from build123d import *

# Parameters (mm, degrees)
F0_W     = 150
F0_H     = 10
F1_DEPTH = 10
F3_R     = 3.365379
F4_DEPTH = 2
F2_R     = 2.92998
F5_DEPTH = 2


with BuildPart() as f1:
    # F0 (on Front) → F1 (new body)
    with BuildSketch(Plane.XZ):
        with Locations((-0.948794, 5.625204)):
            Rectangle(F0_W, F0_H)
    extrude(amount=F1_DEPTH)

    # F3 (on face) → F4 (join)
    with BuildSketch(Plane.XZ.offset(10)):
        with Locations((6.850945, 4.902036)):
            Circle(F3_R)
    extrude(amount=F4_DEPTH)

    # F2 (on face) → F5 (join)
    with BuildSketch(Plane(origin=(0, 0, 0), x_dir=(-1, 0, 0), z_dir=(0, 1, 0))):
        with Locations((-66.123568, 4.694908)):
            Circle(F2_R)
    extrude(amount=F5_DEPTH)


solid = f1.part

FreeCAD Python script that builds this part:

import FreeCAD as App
import Part
import Sketcher

V = App.Vector
Q = App.Units.Quantity

doc = App.newDocument("Part")
params = doc.addObject("Spreadsheet::Sheet", "Params")
for row, (alias, value) in enumerate([
    ("sketch1_width", "150 mm"),
    ("sketch1_height", "10 mm"),
    ("pad1_length", "10 mm"),
    ("pad2_length", "2 mm"),
    ("pad3_length", "2 mm"),
], start=1):
    params.set(f"A{row}", alias)
    params.set(f"B{row}", "=" + value)
    params.setAlias(f"B{row}", alias)

body = doc.addObject("PartDesign::Body", "Body")

# Sketch on XZ plane
sketch1 = body.newObject("Sketcher::SketchObject", "Sketch")
sketch1.AttachmentSupport = (doc.getObject("XZ_Plane"), [""])
sketch1.MapMode = "FlatFace"
sketch1.addGeometry(Part.LineSegment(V(-75.948794, 10.625204, 0), V(-75.948794, 0.625204, 0)), False)
sketch1.addGeometry(Part.LineSegment(V(-75.948794, 0.625204, 0), V(74.051206, 0.625204, 0)), False)
sketch1.addGeometry(Part.LineSegment(V(74.051206, 0.625204, 0), V(74.051206, 10.625204, 0)), False)
sketch1.addGeometry(Part.LineSegment(V(74.051206, 10.625204, 0), V(-75.948794, 10.625204, 0)), False)
sketch1.addConstraint(Sketcher.Constraint("Coincident", 0, 2, 1, 1))
sketch1.addConstraint(Sketcher.Constraint("Coincident", 1, 2, 2, 1))
sketch1.addConstraint(Sketcher.Constraint("Coincident", 2, 2, 3, 1))
sketch1.addConstraint(Sketcher.Constraint("Coincident", 3, 2, 0, 1))
sketch1.addConstraint(Sketcher.Constraint("Vertical", 0))
sketch1.addConstraint(Sketcher.Constraint("Horizontal", 1))
sketch1.addConstraint(Sketcher.Constraint("Vertical", 2))
sketch1.addConstraint(Sketcher.Constraint("Horizontal", 3))
sketch1.addConstraint(Sketcher.Constraint("DistanceX", 1, 1, 1, 2, Q("150 mm")))
sketch1.addConstraint(Sketcher.Constraint("DistanceY", 0, 2, 0, 1, Q("10 mm")))
sketch1.addConstraint(Sketcher.Constraint("DistanceX", 0, 2, -1, 1, Q("75.948794 mm")))
sketch1.addConstraint(Sketcher.Constraint("DistanceY", -1, 1, 0, 2, Q("0.625204 mm")))
sketch1.setExpression("Constraints[8]", "Params.sketch1_width")
sketch1.setExpression("Constraints[9]", "Params.sketch1_height")
pad1 = body.newObject("PartDesign::Pad", "Pad")
pad1.Profile = sketch1
pad1.setExpression("Length", "Params.pad1_length")

# Sketch on XZ plane
sketch2 = body.newObject("Sketcher::SketchObject", "Sketch001")
sketch2.AttachmentSupport = (doc.getObject("XZ_Plane"), [""])
sketch2.MapMode = "FlatFace"
sketch2.AttachmentOffset = App.Placement(V(0, 0, 10), App.Rotation())
sketch2.addGeometry(Part.Circle(V(6.850945, 4.902036, 0), V(0, 0, 1), 3.365379), False)
sketch2.addConstraint(Sketcher.Constraint("Diameter", 0, Q("6.730758 mm")))
sketch2.addConstraint(Sketcher.Constraint("DistanceX", -1, 1, 0, 3, Q("6.850945 mm")))
sketch2.addConstraint(Sketcher.Constraint("DistanceY", -1, 1, 0, 3, Q("4.902036 mm")))
pad2 = body.newObject("PartDesign::Pad", "Pad001")
pad2.Profile = sketch2
pad2.setExpression("Length", "Params.pad2_length")

# Sketch on XZ plane
sketch3 = body.newObject("Sketcher::SketchObject", "Sketch002")
sketch3.AttachmentSupport = (doc.getObject("XZ_Plane"), [""])
sketch3.MapMode = "FlatFace"
sketch3.addGeometry(Part.Circle(V(66.123568, 4.694908, 0), V(0, 0, 1), 2.92998), False)
sketch3.addConstraint(Sketcher.Constraint("Diameter", 0, Q("5.85996 mm")))
sketch3.addConstraint(Sketcher.Constraint("DistanceX", -1, 1, 0, 3, Q("66.123568 mm")))
sketch3.addConstraint(Sketcher.Constraint("DistanceY", -1, 1, 0, 3, Q("4.694908 mm")))
pad3 = body.newObject("PartDesign::Pad", "Pad002")
pad3.Profile = sketch3
pad3.setExpression("Length", "Params.pad3_length")
pad3.Reversed = True

doc.recompute()
